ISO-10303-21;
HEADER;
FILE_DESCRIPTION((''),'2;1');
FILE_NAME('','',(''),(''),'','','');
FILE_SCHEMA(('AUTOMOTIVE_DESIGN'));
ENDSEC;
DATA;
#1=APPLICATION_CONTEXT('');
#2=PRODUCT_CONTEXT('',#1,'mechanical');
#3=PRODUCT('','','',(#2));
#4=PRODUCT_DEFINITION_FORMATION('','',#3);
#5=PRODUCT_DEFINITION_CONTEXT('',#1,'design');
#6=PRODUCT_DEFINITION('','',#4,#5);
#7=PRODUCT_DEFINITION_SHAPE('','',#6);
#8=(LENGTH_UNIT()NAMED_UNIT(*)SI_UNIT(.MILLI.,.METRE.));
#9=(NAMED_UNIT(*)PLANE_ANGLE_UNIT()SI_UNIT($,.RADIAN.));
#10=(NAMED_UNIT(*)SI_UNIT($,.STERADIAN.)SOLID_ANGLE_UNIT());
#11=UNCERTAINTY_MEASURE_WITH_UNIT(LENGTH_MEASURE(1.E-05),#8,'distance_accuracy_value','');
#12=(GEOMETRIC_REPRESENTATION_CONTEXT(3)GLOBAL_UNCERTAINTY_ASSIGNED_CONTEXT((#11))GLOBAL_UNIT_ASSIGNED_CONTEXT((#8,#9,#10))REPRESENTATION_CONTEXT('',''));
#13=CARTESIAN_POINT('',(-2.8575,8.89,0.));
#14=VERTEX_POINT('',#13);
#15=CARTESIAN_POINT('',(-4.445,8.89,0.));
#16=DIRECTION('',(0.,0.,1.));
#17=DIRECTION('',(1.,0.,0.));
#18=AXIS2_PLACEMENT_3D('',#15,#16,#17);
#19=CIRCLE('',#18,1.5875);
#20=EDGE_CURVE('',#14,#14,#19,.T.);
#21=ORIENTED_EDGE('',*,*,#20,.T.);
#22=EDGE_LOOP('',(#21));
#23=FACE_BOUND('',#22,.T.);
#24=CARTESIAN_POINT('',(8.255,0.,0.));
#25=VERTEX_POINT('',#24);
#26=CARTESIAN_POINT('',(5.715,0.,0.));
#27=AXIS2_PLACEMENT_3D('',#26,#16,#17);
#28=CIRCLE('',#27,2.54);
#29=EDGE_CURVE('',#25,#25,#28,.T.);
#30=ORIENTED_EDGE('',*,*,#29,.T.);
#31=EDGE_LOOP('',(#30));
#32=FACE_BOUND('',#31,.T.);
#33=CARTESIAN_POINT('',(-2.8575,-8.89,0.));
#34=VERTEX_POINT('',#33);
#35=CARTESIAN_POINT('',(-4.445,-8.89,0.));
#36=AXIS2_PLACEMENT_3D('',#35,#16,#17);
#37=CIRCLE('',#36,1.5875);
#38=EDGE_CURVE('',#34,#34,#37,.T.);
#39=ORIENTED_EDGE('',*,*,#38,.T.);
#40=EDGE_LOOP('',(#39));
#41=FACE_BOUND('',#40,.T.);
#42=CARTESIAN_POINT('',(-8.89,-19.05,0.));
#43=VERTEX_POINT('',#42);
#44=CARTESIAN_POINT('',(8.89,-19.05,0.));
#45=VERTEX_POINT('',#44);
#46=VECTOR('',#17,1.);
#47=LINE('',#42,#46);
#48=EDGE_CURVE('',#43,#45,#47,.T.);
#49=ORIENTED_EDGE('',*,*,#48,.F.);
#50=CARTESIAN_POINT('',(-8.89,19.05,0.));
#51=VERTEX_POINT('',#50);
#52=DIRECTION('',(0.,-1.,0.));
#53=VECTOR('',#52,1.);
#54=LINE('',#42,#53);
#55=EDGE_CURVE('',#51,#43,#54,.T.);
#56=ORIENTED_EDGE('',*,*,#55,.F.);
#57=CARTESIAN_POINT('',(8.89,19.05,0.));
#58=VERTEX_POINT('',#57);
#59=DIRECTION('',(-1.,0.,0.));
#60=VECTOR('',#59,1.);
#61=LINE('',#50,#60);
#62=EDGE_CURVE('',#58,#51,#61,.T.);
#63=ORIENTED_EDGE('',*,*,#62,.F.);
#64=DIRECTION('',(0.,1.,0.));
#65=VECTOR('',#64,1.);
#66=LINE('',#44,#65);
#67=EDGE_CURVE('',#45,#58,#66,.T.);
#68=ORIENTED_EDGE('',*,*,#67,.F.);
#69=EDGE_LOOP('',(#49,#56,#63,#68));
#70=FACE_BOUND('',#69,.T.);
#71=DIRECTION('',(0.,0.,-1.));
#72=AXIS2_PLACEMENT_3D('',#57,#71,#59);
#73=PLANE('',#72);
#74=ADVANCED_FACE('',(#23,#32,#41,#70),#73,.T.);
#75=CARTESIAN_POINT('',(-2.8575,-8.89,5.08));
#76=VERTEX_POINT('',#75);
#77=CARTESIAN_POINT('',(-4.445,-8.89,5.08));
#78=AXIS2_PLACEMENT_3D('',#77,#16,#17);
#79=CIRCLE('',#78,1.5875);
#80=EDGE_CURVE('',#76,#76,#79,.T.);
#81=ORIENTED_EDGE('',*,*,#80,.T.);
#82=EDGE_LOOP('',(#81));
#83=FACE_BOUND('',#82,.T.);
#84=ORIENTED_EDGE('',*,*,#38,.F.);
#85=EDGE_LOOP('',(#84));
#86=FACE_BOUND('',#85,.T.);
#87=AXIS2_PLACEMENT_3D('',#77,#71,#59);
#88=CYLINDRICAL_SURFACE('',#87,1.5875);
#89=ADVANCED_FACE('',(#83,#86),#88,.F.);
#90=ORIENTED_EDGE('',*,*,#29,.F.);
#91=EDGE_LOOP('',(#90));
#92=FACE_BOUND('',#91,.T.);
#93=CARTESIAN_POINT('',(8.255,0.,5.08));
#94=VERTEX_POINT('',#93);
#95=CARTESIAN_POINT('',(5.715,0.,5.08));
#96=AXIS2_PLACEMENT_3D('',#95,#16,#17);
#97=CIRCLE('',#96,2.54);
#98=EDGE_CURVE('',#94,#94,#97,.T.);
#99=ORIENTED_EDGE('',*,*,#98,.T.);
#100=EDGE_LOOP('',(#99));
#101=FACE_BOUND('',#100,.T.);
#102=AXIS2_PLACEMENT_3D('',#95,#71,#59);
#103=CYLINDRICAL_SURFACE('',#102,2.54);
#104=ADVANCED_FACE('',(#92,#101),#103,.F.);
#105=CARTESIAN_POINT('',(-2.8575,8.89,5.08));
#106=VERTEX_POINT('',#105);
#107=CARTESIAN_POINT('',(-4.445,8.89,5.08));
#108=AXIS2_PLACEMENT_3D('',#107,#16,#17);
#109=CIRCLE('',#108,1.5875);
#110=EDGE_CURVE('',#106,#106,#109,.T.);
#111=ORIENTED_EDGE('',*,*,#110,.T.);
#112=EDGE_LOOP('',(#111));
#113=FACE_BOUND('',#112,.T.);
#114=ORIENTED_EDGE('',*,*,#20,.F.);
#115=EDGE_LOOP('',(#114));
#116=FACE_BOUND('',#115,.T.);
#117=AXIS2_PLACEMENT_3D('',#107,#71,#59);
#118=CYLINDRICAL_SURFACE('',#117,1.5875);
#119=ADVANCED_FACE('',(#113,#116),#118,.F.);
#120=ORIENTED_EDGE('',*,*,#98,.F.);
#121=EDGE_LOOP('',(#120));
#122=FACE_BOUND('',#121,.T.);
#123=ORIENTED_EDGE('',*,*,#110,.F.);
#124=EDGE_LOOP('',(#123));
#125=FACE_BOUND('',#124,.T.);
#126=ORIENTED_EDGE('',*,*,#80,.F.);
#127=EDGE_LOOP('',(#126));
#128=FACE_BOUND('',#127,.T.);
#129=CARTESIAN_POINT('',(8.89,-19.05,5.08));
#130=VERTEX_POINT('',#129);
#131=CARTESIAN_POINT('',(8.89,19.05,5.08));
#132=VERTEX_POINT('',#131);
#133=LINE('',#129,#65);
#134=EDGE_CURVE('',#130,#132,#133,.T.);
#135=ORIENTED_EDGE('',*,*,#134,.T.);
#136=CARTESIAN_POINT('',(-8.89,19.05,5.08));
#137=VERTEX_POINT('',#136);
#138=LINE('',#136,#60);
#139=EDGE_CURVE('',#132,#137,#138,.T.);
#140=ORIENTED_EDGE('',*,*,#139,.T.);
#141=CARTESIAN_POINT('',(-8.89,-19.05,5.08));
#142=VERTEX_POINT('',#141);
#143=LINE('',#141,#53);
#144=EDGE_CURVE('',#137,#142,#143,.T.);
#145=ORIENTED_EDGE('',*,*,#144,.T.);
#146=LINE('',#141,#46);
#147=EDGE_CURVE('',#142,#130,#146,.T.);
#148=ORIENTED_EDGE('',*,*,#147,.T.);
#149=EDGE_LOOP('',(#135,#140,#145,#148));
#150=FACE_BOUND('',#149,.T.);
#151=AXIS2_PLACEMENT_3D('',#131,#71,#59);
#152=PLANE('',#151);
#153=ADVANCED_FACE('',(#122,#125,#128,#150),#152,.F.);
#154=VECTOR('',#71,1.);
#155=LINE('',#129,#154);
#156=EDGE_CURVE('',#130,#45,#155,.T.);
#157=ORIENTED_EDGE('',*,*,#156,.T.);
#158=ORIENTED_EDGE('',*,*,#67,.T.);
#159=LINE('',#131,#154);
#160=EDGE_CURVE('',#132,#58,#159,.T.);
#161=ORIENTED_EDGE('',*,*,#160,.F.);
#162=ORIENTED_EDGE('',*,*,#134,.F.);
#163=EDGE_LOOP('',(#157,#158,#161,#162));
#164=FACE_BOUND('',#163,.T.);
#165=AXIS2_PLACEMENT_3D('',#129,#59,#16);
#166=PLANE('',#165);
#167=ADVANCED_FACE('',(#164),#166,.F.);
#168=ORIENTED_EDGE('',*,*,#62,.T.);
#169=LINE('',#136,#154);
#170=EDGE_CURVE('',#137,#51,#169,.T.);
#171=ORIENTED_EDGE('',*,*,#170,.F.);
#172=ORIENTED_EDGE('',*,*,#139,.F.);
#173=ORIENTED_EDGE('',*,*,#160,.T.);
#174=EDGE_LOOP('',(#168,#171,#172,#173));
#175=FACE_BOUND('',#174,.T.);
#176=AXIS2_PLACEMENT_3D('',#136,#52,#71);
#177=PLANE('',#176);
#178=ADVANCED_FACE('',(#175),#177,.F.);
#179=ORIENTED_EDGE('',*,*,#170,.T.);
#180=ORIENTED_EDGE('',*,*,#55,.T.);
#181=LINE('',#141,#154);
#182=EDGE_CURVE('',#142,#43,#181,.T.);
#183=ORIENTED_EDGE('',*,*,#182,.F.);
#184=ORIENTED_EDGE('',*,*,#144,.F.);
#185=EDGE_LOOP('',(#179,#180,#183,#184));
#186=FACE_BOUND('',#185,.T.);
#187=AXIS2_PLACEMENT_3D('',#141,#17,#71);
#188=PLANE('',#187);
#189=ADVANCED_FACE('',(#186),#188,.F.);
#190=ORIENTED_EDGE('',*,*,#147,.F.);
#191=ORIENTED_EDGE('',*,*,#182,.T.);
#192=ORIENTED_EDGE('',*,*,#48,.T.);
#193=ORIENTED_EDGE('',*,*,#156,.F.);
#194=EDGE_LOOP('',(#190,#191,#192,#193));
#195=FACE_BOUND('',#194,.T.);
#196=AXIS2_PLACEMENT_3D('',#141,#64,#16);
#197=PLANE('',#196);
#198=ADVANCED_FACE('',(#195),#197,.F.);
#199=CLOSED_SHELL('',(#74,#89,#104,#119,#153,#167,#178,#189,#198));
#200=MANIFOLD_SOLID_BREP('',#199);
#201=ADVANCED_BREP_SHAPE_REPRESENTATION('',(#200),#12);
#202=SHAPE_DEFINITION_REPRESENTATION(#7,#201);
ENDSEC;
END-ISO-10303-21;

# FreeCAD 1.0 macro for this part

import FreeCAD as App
import Part
import Sketcher
Q = App.Units.Quantity


def add_polygon(sketch, points):
    """Adds a closed chain of lines whose ends are joined by coincident constraints."""
    first, n = sketch.GeometryCount, len(points)
    for a, b in zip(points, points[1:] + points[:1]):
        sketch.addGeometry(Part.LineSegment(App.Vector(*a, 0), App.Vector(*b, 0)), False)
    for i in range(n):
        sketch.addConstraint(Sketcher.Constraint("Coincident", first + i, 2, first + (i + 1) % n, 1))

doc = App.newDocument("Part")
body = doc.addObject("PartDesign::Body", "Body")

sketch1 = doc.addObject("Sketcher::SketchObject", "Sketch")
body.addObject(sketch1)
sketch1.AttachmentSupport = (doc.XY_Plane, [""])
sketch1.MapMode = "FlatFace"
add_polygon(sketch1, [(-8.9, 19.1), (-8.9, -19.1), (8.9, -19.1), (8.9, 19.1)])
sketch1.addGeometry(Part.Circle(App.Vector(-4.4, -8.9, 0), App.Vector(0, 0, 1), 1.6), False)
sketch1.addGeometry(Part.Circle(App.Vector(-4.4, 8.9, 0), App.Vector(0, 0, 1), 1.6), False)
sketch1.addGeometry(Part.Circle(App.Vector(5.7, 0, 0), App.Vector(0, 0, 1), 2.5), False)
sketch1.addConstraint([
    Sketcher.Constraint("Vertical", 0),
    Sketcher.Constraint("Horizontal", 1),
    Sketcher.Constraint("Vertical", 2),
    Sketcher.Constraint("Horizontal", 3),
    Sketcher.Constraint("Equal", 4, 5),
    Sketcher.Constraint("Symmetric", 0, 2, 2, 2, -1, 1),
    Sketcher.Constraint("Symmetric", 4, 3, 5, 3, -1),
    Sketcher.Constraint("PointOnObject", 6, 3, -1),
    Sketcher.Constraint("Diameter", 6, Q("0.2 in")),
    Sketcher.Constraint("Diameter", 4, Q("0.125 in")),
    Sketcher.Constraint("DistanceX", 1, 1, 1, 2, Q("0.7 in")),
    Sketcher.Constraint("DistanceY", 0, 2, 0, 1, Q("1.5 in")),
    Sketcher.Constraint("DistanceY", 4, 3, 5, 3, Q("0.7 in")),
    Sketcher.Constraint("DistanceX", 4, 3, 6, 3, Q("0.4 in")),
    Sketcher.Constraint("DistanceX", 4, 3, -1, 1, Q("0.175 in")),
])
pad1 = doc.addObject("PartDesign::Pad", "Pad")
body.addObject(pad1)
pad1.Profile = sketch1
pad1.Length = Q("0.2 in")

doc.recompute()
